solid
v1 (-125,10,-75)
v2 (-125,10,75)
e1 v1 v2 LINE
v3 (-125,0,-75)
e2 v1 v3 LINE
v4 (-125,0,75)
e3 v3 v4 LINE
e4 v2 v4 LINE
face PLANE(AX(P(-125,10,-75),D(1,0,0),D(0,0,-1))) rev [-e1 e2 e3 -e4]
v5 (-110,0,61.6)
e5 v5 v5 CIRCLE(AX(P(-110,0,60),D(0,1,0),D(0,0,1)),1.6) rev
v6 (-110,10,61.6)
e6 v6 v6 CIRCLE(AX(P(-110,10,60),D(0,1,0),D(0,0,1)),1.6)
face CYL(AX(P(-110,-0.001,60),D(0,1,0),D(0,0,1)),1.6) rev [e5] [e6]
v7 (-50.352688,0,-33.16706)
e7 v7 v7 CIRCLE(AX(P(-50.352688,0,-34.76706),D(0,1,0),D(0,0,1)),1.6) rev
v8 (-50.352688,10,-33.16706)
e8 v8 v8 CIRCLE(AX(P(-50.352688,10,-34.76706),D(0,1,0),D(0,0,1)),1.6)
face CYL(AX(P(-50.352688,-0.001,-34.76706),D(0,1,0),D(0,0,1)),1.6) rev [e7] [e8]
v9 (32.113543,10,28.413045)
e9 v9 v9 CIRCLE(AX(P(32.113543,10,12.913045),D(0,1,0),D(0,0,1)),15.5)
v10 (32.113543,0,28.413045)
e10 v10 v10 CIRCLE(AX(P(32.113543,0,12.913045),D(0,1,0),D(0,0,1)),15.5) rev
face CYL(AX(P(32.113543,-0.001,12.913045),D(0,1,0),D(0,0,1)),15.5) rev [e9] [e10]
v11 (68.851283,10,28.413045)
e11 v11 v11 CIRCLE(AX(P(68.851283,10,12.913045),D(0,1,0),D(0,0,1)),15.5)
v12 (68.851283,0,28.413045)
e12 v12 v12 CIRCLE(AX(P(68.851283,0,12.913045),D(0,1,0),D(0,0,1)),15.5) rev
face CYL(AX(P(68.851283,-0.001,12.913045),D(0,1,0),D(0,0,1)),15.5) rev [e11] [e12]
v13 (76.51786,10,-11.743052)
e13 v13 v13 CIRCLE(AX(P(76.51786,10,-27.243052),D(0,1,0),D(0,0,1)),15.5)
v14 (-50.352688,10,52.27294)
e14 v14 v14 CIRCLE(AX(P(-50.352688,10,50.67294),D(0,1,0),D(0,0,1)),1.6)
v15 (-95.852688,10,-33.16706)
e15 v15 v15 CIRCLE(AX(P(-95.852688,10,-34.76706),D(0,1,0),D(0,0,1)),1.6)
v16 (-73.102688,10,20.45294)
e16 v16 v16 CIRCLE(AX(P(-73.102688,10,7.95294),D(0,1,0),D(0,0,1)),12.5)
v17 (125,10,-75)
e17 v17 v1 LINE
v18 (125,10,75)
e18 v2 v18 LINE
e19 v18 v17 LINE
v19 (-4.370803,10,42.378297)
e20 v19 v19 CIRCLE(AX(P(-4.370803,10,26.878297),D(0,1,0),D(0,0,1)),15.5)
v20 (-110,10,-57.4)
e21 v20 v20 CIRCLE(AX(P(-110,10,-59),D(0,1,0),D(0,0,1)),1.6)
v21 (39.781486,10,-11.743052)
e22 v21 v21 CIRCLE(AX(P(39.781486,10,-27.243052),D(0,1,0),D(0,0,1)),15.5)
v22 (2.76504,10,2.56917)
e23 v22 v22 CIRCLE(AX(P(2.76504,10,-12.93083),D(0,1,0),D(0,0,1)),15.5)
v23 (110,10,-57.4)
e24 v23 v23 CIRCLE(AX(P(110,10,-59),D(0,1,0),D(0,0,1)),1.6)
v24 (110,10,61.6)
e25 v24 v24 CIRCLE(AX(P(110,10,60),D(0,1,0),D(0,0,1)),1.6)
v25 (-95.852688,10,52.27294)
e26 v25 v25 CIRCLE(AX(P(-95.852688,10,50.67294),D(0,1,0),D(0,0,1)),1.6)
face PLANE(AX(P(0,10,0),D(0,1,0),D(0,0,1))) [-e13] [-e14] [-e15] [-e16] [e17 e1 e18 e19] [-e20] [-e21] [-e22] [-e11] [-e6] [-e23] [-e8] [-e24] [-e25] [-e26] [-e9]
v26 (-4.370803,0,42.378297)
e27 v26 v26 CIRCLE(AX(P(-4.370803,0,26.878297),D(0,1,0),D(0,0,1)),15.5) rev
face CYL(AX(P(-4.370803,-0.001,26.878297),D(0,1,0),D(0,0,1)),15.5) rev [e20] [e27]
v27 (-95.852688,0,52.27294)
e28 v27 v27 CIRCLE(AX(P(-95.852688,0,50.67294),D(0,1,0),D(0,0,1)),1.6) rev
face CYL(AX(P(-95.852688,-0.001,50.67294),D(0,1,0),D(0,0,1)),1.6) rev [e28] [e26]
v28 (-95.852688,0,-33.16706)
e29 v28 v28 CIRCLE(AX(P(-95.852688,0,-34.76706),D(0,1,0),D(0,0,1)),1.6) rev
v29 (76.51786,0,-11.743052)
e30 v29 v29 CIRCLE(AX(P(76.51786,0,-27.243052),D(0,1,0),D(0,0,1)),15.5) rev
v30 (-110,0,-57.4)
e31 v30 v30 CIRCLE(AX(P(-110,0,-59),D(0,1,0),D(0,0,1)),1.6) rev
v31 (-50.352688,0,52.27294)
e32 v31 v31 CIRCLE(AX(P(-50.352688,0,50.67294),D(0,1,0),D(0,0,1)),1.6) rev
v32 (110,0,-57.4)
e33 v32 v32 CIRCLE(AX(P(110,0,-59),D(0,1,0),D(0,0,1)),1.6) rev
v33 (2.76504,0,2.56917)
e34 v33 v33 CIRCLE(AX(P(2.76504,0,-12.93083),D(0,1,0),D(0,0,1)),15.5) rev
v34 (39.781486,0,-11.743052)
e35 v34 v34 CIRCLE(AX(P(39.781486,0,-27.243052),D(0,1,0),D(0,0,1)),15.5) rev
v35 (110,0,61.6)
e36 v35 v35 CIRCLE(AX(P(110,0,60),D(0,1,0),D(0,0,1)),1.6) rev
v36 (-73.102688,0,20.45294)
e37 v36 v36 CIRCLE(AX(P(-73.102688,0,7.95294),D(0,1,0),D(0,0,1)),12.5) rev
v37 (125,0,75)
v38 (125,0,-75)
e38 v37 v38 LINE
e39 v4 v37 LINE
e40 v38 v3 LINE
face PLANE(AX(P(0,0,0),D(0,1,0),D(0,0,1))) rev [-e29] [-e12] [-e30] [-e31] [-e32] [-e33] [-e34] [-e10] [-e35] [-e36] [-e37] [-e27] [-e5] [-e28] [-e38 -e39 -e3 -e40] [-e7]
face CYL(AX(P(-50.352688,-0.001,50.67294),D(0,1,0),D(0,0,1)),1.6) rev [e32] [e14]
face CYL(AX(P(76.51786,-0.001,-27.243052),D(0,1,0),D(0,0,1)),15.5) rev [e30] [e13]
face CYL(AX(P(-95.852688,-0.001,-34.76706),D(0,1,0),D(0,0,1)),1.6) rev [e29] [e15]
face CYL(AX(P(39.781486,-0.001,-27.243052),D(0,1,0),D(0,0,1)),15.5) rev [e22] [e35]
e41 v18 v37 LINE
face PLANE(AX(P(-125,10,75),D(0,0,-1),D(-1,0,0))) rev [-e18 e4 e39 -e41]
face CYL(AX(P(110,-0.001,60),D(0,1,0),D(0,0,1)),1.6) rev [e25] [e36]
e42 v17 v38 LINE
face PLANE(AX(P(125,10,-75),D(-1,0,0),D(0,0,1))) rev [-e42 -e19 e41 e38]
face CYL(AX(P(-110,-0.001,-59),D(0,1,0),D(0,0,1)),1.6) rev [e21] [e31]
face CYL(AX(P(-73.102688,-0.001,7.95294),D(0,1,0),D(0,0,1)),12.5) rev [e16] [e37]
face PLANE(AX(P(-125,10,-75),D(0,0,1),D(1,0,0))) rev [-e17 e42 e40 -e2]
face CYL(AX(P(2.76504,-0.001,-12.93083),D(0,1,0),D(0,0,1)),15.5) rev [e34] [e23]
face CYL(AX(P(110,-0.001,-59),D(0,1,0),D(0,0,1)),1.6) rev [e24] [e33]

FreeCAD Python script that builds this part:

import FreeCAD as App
import Part
import Sketcher
from FreeCAD import Vector
Q = App.Units.Quantity


def add_polygon(sketch, points):
    """Adds a closed chain of lines whose ends are joined by coincident constraints."""
    first, n = sketch.GeometryCount, len(points)
    for a, b in zip(points, points[1:] + points[:1]):
        sketch.addGeometry(Part.LineSegment(App.Vector(*a, 0), App.Vector(*b, 0)), False)
    for i in range(n):
        sketch.addConstraint(Sketcher.Constraint("Coincident", first + i, 2, first + (i + 1) % n, 1))

doc = App.newDocument("Part")
body = doc.addObject("PartDesign::Body", "Body")

sketch1 = body.newObject("Sketcher::SketchObject", "Sketch")
sketch1.AttachmentSupport = (doc.getObject("XZ_Plane"), [""])
sketch1.MapMode = "FlatFace"
add_polygon(sketch1, [(-125, -75), (-125, 75), (125, 75), (125, -75)])
sketch1.addConstraint(Sketcher.Constraint("Vertical", 0))
sketch1.addConstraint(Sketcher.Constraint("Horizontal", 1))
sketch1.addConstraint(Sketcher.Constraint("Vertical", 2))
sketch1.addConstraint(Sketcher.Constraint("Horizontal", 3))
sketch1.addConstraint(Sketcher.Constraint("Symmetric", 0, 2, 2, 2, -1, 1))
sketch1.addConstraint(Sketcher.Constraint("DistanceX", 1, 1, 1, 2, Q("250 mm")))
sketch1.addConstraint(Sketcher.Constraint("DistanceY", 0, 1, 0, 2, Q("150 mm")))
pad1 = body.newObject("PartDesign::Pad", "Pad")
pad1.Profile = sketch1
pad1.Length = 10
pad1.Reversed = True

sketch2 = body.newObject("Sketcher::SketchObject", "Sketch001")
sketch2.AttachmentSupport = (doc.getObject("XZ_Plane"), [""])
sketch2.MapMode = "FlatFace"
sketch2.AttachmentOffset = App.Placement(Vector(0, 0, -10), App.Rotation())
sketch2.addGeometry(Part.Circle(Vector(-73, 8, 0), Vector(0, 0, 1), 12), False)
sketch2.addConstraint(Sketcher.Constraint("Diameter", 0, Q("25 mm")))
sketch2.addConstraint(Sketcher.Constraint("DistanceY", -1, 1, 0, 3, Q("7.95294 mm")))
sketch2.addConstraint(Sketcher.Constraint("DistanceX", 0, 3, -1, 1, Q("73.102688 mm")))
pocket1 = body.newObject("PartDesign::Pocket", "Pocket")
pocket1.Profile = sketch2
pocket1.Type = "UpToFirst"
pocket1.Reversed = True

sketch3 = body.newObject("Sketcher::SketchObject", "Sketch002")
sketch3.AttachmentSupport = (doc.getObject("XZ_Plane"), [""])
sketch3.MapMode = "FlatFace"
sketch3.AttachmentOffset = App.Placement(Vector(0, 0, -10), App.Rotation())
sketch3.addGeometry(Part.Circle(Vector(-4, 27, 0), Vector(0, 0, 1), 16), False)
sketch3.addConstraint(Sketcher.Constraint("Diameter", 0, Q("31 mm")))
sketch3.addConstraint(Sketcher.Constraint("DistanceX", 0, 3, -1, 1, Q("4.370803 mm")))
sketch3.addConstraint(Sketcher.Constraint("DistanceY", -1, 1, 0, 3, Q("26.878297 mm")))
pocket2 = body.newObject("PartDesign::Pocket", "Pocket001")
pocket2.Profile = sketch3
pocket2.Type = "UpToFirst"
pocket2.Reversed = True

sketch4 = body.newObject("Sketcher::SketchObject", "Sketch003")
sketch4.AttachmentSupport = (doc.getObject("XZ_Plane"), [""])
sketch4.MapMode = "FlatFace"
sketch4.AttachmentOffset = App.Placement(Vector(0, 0, -10), App.Rotation())
sketch4.addGeometry(Part.Circle(Vector(3, -13, 0), Vector(0, 0, 1), 16), False)
sketch4.addConstraint(Sketcher.Constraint("Diameter", 0, Q("31 mm")))
sketch4.addConstraint(Sketcher.Constraint("DistanceX", -1, 1, 0, 3, Q("2.76504 mm")))
sketch4.addConstraint(Sketcher.Constraint("DistanceY", 0, 3, -1, 1, Q("12.93083 mm")))
pocket3 = body.newObject("PartDesign::Pocket", "Pocket002")
pocket3.Profile = sketch4
pocket3.Type = "UpToFirst"
pocket3.Reversed = True

sketch5 = body.newObject("Sketcher::SketchObject", "Sketch004")
sketch5.AttachmentSupport = (doc.getObject("XZ_Plane"), [""])
sketch5.MapMode = "FlatFace"
sketch5.AttachmentOffset = App.Placement(Vector(0, 0, -10), App.Rotation())
sketch5.addGeometry(Part.Circle(Vector(40, -27, 0), Vector(0, 0, 1), 16), False)
sketch5.addConstraint(Sketcher.Constraint("Diameter", 0, Q("31 mm")))
sketch5.addConstraint(Sketcher.Constraint("DistanceY", 0, 3, -1, 1, Q("27.243052 mm")))
sketch5.addConstraint(Sketcher.Constraint("DistanceX", -1, 1, 0, 3, Q("39.781486 mm")))
pocket4 = body.newObject("PartDesign::Pocket", "Pocket003")
pocket4.Profile = sketch5
pocket4.Type = "UpToFirst"
pocket4.Reversed = True

sketch6 = body.newObject("Sketcher::SketchObject", "Sketch005")
sketch6.AttachmentSupport = (doc.getObject("XZ_Plane"), [""])
sketch6.MapMode = "FlatFace"
sketch6.AttachmentOffset = App.Placement(Vector(0, 0, -10), App.Rotation())
sketch6.addGeometry(Part.Circle(Vector(77, -27, 0), Vector(0, 0, 1), 16), False)
sketch6.addConstraint(Sketcher.Constraint("Diameter", 0, Q("31 mm")))
sketch6.addConstraint(Sketcher.Constraint("DistanceX", -1, 1, 0, 3, Q("76.51786 mm")))
sketch6.addConstraint(Sketcher.Constraint("DistanceY", 0, 3, -1, 1, Q("27.243052 mm")))
pocket5 = body.newObject("PartDesign::Pocket", "Pocket004")
pocket5.Profile = sketch6
pocket5.Type = "UpToFirst"
pocket5.Reversed = True

sketch7 = body.newObject("Sketcher::SketchObject", "Sketch006")
sketch7.AttachmentSupport = (doc.getObject("XZ_Plane"), [""])
sketch7.MapMode = "FlatFace"
sketch7.AttachmentOffset = App.Placement(Vector(0, 0, -10), App.Rotation())
sketch7.addGeometry(Part.Circle(Vector(69, 13, 0), Vector(0, 0, 1), 16), False)
sketch7.addConstraint(Sketcher.Constraint("Diameter", 0, Q("31 mm")))
sketch7.addConstraint(Sketcher.Constraint("DistanceX", -1, 1, 0, 3, Q("68.851283 mm")))
sketch7.addConstraint(Sketcher.Constraint("DistanceY", -1, 1, 0, 3, Q("12.913045 mm")))
pocket6 = body.newObject("PartDesign::Pocket", "Pocket005")
pocket6.Profile = sketch7
pocket6.Type = "UpToFirst"
pocket6.Reversed = True

sketch8 = body.newObject("Sketcher::SketchObject", "Sketch007")
sketch8.AttachmentSupport = (doc.getObject("XZ_Plane"), [""])
sketch8.MapMode = "FlatFace"
sketch8.AttachmentOffset = App.Placement(Vector(0, 0, -10), App.Rotation())
sketch8.addGeometry(Part.Circle(Vector(32, 13, 0), Vector(0, 0, 1), 16), False)
sketch8.addConstraint(Sketcher.Constraint("Diameter", 0, Q("31 mm")))
sketch8.addConstraint(Sketcher.Constraint("DistanceX", -1, 1, 0, 3, Q("32.113543 mm")))
sketch8.addConstraint(Sketcher.Constraint("DistanceY", -1, 1, 0, 3, Q("12.913045 mm")))
pocket7 = body.newObject("PartDesign::Pocket", "Pocket006")
pocket7.Profile = sketch8
pocket7.Type = "UpToFirst"
pocket7.Reversed = True

sketch9 = body.newObject("Sketcher::SketchObject", "Sketch008")
sketch9.AttachmentSupport = (doc.getObject("XZ_Plane"), [""])
sketch9.MapMode = "FlatFace"
sketch9.AttachmentOffset = App.Placement(Vector(0, 0, -10), App.Rotation())
sketch9.addGeometry(Part.Circle(Vector(-110, -59, 0), Vector(0, 0, 1), 1.6), False)
sketch9.addConstraint(Sketcher.Constraint("Diameter", 0, Q("3.2 mm")))
sketch9.addConstraint(Sketcher.Constraint("DistanceX", 0, 3, -1, 1, Q("110 mm")))
sketch9.addConstraint(Sketcher.Constraint("DistanceY", 0, 3, -1, 1, Q("59 mm")))
pocket8 = body.newObject("PartDesign::Pocket", "Pocket007")
pocket8.Profile = sketch9
pocket8.Type = "UpToFirst"
pocket8.Reversed = True

sketch10 = body.newObject("Sketcher::SketchObject", "Sketch009")
sketch10.AttachmentSupport = (doc.getObject("XZ_Plane"), [""])
sketch10.MapMode = "FlatFace"
sketch10.AttachmentOffset = App.Placement(Vector(0, 0, -10), App.Rotation())
sketch10.addGeometry(Part.Circle(Vector(110, -59, 0), Vector(0, 0, 1), 1.6), False)
sketch10.addConstraint(Sketcher.Constraint("Diameter", 0, Q("3.2 mm")))
sketch10.addConstraint(Sketcher.Constraint("DistanceX", -1, 1, 0, 3, Q("110 mm")))
sketch10.addConstraint(Sketcher.Constraint("DistanceY", 0, 3, -1, 1, Q("59 mm")))
pocket9 = body.newObject("PartDesign::Pocket", "Pocket008")
pocket9.Profile = sketch10
pocket9.Type = "UpToFirst"
pocket9.Reversed = True

sketch11 = body.newObject("Sketcher::SketchObject", "Sketch010")
sketch11.AttachmentSupport = (doc.getObject("XZ_Plane"), [""])
sketch11.MapMode = "FlatFace"
sketch11.AttachmentOffset = App.Placement(Vector(0, 0, -10), App.Rotation())
sketch11.addGeometry(Part.Circle(Vector(110, 60, 0), Vector(0, 0, 1), 1.6), False)
sketch11.addConstraint(Sketcher.Constraint("Diameter", 0, Q("3.2 mm")))
sketch11.addConstraint(Sketcher.Constraint("DistanceX", -1, 1, 0, 3, Q("110 mm")))
sketch11.addConstraint(Sketcher.Constraint("DistanceY", -1, 1, 0, 3, Q("60 mm")))
pocket10 = body.newObject("PartDesign::Pocket", "Pocket009")
pocket10.Profile = sketch11
pocket10.Type = "UpToFirst"
pocket10.Reversed = True

sketch12 = body.newObject("Sketcher::SketchObject", "Sketch011")
sketch12.AttachmentSupport = (doc.getObject("XZ_Plane"), [""])
sketch12.MapMode = "FlatFace"
sketch12.AttachmentOffset = App.Placement(Vector(0, 0, -10), App.Rotation())
sketch12.addGeometry(Part.Circle(Vector(-110, 60, 0), Vector(0, 0, 1), 1.6), False)
sketch12.addConstraint(Sketcher.Constraint("Diameter", 0, Q("3.2 mm")))
sketch12.addConstraint(Sketcher.Constraint("DistanceX", 0, 3, -1, 1, Q("110 mm")))
sketch12.addConstraint(Sketcher.Constraint("DistanceY", -1, 1, 0, 3, Q("60 mm")))
pocket11 = body.newObject("PartDesign::Pocket", "Pocket010")
pocket11.Profile = sketch12
pocket11.Type = "UpToFirst"
pocket11.Reversed = True

sketch13 = body.newObject("Sketcher::SketchObject", "Sketch012")
sketch13.AttachmentSupport = (doc.getObject("XZ_Plane"), [""])
sketch13.MapMode = "FlatFace"
sketch13.AttachmentOffset = App.Placement(Vector(0, 0, -10), App.Rotation())
sketch13.addGeometry(Part.Circle(Vector(-50.4, -34.8, 0), Vector(0, 0, 1), 1.6), False)
sketch13.addConstraint(Sketcher.Constraint("Diameter", 0, Q("3.2 mm")))
sketch13.addConstraint(Sketcher.Constraint("DistanceY", 0, 3, -1, 1, Q("34.76706 mm")))
sketch13.addConstraint(Sketcher.Constraint("DistanceX", 0, 3, -1, 1, Q("50.352688 mm")))
pocket12 = body.newObject("PartDesign::Pocket", "Pocket011")
pocket12.Profile = sketch13
pocket12.Type = "UpToFirst"
pocket12.Reversed = True

sketch14 = body.newObject("Sketcher::SketchObject", "Sketch013")
sketch14.AttachmentSupport = (doc.getObject("XZ_Plane"), [""])
sketch14.MapMode = "FlatFace"
sketch14.AttachmentOffset = App.Placement(Vector(0, 0, -10), App.Rotation())
sketch14.addGeometry(Part.Circle(Vector(-50.4, 50.7, 0), Vector(0, 0, 1), 1.6), False)
sketch14.addConstraint(Sketcher.Constraint("Diameter", 0, Q("3.2 mm")))
sketch14.addConstraint(Sketcher.Constraint("DistanceY", -1, 1, 0, 3, Q("50.67294 mm")))
sketch14.addConstraint(Sketcher.Constraint("DistanceX", 0, 3, -1, 1, Q("50.352688 mm")))
pocket13 = body.newObject("PartDesign::Pocket", "Pocket012")
pocket13.Profile = sketch14
pocket13.Type = "UpToFirst"
pocket13.Reversed = True

sketch15 = body.newObject("Sketcher::SketchObject", "Sketch014")
sketch15.AttachmentSupport = (doc.getObject("XZ_Plane"), [""])
sketch15.MapMode = "FlatFace"
sketch15.AttachmentOffset = App.Placement(Vector(0, 0, -10), App.Rotation())
sketch15.addGeometry(Part.Circle(Vector(-95.9, 50.7, 0), Vector(0, 0, 1), 1.6), False)
sketch15.addConstraint(Sketcher.Constraint("Diameter", 0, Q("3.2 mm")))
sketch15.addConstraint(Sketcher.Constraint("DistanceY", -1, 1, 0, 3, Q("50.67294 mm")))
sketch15.addConstraint(Sketcher.Constraint("DistanceX", 0, 3, -1, 1, Q("95.852688 mm")))
pocket14 = body.newObject("PartDesign::Pocket", "Pocket013")
pocket14.Profile = sketch15
pocket14.Type = "UpToFirst"
pocket14.Reversed = True

sketch16 = body.newObject("Sketcher::SketchObject", "Sketch015")
sketch16.AttachmentSupport = (doc.getObject("XZ_Plane"), [""])
sketch16.MapMode = "FlatFace"
sketch16.AttachmentOffset = App.Placement(Vector(0, 0, -10), App.Rotation())
sketch16.addGeometry(Part.Circle(Vector(-95.9, -34.8, 0), Vector(0, 0, 1), 1.6), False)
sketch16.addConstraint(Sketcher.Constraint("Diameter", 0, Q("3.2 mm")))
sketch16.addConstraint(Sketcher.Constraint("DistanceY", 0, 3, -1, 1, Q("34.76706 mm")))
sketch16.addConstraint(Sketcher.Constraint("DistanceX", 0, 3, -1, 1, Q("95.852688 mm")))
pocket15 = body.newObject("PartDesign::Pocket", "Pocket014")
pocket15.Profile = sketch16
pocket15.Type = "UpToFirst"
pocket15.Reversed = True

doc.recompute()
